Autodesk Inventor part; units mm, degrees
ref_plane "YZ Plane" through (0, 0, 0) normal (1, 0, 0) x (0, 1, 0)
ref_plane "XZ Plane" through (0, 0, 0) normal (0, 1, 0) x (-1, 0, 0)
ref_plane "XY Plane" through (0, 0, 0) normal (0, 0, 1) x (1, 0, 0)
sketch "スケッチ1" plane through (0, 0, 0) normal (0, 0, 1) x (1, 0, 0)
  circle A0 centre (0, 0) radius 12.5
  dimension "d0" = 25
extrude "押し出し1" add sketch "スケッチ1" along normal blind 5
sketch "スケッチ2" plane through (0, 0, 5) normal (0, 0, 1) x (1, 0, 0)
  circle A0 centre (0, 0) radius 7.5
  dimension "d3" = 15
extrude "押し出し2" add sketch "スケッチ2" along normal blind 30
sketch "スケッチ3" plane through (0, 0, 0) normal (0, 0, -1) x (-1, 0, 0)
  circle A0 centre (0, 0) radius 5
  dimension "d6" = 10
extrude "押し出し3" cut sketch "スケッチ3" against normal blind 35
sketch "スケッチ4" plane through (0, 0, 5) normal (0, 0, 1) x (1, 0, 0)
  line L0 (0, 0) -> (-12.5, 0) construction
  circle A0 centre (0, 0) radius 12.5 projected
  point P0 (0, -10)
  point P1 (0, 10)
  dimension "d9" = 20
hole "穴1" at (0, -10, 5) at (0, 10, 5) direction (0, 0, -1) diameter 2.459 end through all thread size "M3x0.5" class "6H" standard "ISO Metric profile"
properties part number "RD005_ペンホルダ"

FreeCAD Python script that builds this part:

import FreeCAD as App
import Part
import Sketcher

doc = App.newDocument("Part")
body = doc.addObject("PartDesign::Body", "Body")

# Sketch on XY plane
sketch1 = body.newObject("Sketcher::SketchObject", "Sketch")
sketch1.AttachmentSupport = (doc.getObject("XY_Plane"), [""])
sketch1.MapMode = "FlatFace"
sketch1.addGeometry(Part.Circle(App.Vector(0, 0, 0), App.Vector(0, 0, 1), 12), False)
sketch1.addConstraint([
    Sketcher.Constraint("Coincident", 0, 3, -1, 1),
    Sketcher.Constraint("Diameter", 0, 25.0),
])
pad1 = body.newObject("PartDesign::Pad", "Pad")
pad1.Profile = sketch1
pad1.Length = 5

# Sketch on XY plane
sketch2 = body.newObject("Sketcher::SketchObject", "Sketch001")
sketch2.AttachmentSupport = (doc.getObject("XY_Plane"), [""])
sketch2.MapMode = "FlatFace"
sketch2.AttachmentOffset = App.Placement(App.Vector(0, 0, 5), App.Rotation())
sketch2.addGeometry(Part.Circle(App.Vector(0, 0, 0), App.Vector(0, 0, 1), 8), False)
sketch2.addConstraint([
    Sketcher.Constraint("Coincident", 0, 3, -1, 1),
    Sketcher.Constraint("Diameter", 0, 15.0),
])
pad2 = body.newObject("PartDesign::Pad", "Pad001")
pad2.Profile = sketch2
pad2.Length = 30

# Sketch on XY plane
sketch3 = body.newObject("Sketcher::SketchObject", "Sketch002")
sketch3.AttachmentSupport = (doc.getObject("XY_Plane"), [""])
sketch3.MapMode = "FlatFace"
sketch3.addGeometry(Part.Circle(App.Vector(0, 0, 0), App.Vector(0, 0, 1), 5), False)
sketch3.addConstraint([
    Sketcher.Constraint("Coincident", 0, 3, -1, 1),
    Sketcher.Constraint("Diameter", 0, 10.0),
])
pocket1 = body.newObject("PartDesign::Pocket", "Pocket")
pocket1.Profile = sketch3
pocket1.Length = 35
pocket1.Reversed = True

# Sketch on XY plane
sketch4 = body.newObject("Sketcher::SketchObject", "Sketch003")
sketch4.AttachmentSupport = (doc.getObject("XY_Plane"), [""])
sketch4.MapMode = "FlatFace"
sketch4.AttachmentOffset = App.Placement(App.Vector(0, 0, 5), App.Rotation())
sketch4.addGeometry([
    Part.Circle(App.Vector(0, -10, 0), App.Vector(0, 0, 1), 1.2),
    Part.Circle(App.Vector(0, 10, 0), App.Vector(0, 0, 1), 1.2),
], False)
sketch4.addConstraint([
    Sketcher.Constraint("Equal", 0, 1),
    Sketcher.Constraint("Symmetric", 0, 3, 1, 3, -1, 1),
    Sketcher.Constraint("PointOnObject", 0, 3, -2),
    Sketcher.Constraint("Diameter", 0, 2.459),
    Sketcher.Constraint("DistanceY", 0, 3, -1, 1, 10.0),
])
doc.recompute()
hole = body.newObject("PartDesign::Hole", "Hole")
hole.Profile = sketch4
hole.ThreadType = "None"
hole.Diameter = 2.459
hole.DepthType = "ThroughAll"

doc.recompute()
